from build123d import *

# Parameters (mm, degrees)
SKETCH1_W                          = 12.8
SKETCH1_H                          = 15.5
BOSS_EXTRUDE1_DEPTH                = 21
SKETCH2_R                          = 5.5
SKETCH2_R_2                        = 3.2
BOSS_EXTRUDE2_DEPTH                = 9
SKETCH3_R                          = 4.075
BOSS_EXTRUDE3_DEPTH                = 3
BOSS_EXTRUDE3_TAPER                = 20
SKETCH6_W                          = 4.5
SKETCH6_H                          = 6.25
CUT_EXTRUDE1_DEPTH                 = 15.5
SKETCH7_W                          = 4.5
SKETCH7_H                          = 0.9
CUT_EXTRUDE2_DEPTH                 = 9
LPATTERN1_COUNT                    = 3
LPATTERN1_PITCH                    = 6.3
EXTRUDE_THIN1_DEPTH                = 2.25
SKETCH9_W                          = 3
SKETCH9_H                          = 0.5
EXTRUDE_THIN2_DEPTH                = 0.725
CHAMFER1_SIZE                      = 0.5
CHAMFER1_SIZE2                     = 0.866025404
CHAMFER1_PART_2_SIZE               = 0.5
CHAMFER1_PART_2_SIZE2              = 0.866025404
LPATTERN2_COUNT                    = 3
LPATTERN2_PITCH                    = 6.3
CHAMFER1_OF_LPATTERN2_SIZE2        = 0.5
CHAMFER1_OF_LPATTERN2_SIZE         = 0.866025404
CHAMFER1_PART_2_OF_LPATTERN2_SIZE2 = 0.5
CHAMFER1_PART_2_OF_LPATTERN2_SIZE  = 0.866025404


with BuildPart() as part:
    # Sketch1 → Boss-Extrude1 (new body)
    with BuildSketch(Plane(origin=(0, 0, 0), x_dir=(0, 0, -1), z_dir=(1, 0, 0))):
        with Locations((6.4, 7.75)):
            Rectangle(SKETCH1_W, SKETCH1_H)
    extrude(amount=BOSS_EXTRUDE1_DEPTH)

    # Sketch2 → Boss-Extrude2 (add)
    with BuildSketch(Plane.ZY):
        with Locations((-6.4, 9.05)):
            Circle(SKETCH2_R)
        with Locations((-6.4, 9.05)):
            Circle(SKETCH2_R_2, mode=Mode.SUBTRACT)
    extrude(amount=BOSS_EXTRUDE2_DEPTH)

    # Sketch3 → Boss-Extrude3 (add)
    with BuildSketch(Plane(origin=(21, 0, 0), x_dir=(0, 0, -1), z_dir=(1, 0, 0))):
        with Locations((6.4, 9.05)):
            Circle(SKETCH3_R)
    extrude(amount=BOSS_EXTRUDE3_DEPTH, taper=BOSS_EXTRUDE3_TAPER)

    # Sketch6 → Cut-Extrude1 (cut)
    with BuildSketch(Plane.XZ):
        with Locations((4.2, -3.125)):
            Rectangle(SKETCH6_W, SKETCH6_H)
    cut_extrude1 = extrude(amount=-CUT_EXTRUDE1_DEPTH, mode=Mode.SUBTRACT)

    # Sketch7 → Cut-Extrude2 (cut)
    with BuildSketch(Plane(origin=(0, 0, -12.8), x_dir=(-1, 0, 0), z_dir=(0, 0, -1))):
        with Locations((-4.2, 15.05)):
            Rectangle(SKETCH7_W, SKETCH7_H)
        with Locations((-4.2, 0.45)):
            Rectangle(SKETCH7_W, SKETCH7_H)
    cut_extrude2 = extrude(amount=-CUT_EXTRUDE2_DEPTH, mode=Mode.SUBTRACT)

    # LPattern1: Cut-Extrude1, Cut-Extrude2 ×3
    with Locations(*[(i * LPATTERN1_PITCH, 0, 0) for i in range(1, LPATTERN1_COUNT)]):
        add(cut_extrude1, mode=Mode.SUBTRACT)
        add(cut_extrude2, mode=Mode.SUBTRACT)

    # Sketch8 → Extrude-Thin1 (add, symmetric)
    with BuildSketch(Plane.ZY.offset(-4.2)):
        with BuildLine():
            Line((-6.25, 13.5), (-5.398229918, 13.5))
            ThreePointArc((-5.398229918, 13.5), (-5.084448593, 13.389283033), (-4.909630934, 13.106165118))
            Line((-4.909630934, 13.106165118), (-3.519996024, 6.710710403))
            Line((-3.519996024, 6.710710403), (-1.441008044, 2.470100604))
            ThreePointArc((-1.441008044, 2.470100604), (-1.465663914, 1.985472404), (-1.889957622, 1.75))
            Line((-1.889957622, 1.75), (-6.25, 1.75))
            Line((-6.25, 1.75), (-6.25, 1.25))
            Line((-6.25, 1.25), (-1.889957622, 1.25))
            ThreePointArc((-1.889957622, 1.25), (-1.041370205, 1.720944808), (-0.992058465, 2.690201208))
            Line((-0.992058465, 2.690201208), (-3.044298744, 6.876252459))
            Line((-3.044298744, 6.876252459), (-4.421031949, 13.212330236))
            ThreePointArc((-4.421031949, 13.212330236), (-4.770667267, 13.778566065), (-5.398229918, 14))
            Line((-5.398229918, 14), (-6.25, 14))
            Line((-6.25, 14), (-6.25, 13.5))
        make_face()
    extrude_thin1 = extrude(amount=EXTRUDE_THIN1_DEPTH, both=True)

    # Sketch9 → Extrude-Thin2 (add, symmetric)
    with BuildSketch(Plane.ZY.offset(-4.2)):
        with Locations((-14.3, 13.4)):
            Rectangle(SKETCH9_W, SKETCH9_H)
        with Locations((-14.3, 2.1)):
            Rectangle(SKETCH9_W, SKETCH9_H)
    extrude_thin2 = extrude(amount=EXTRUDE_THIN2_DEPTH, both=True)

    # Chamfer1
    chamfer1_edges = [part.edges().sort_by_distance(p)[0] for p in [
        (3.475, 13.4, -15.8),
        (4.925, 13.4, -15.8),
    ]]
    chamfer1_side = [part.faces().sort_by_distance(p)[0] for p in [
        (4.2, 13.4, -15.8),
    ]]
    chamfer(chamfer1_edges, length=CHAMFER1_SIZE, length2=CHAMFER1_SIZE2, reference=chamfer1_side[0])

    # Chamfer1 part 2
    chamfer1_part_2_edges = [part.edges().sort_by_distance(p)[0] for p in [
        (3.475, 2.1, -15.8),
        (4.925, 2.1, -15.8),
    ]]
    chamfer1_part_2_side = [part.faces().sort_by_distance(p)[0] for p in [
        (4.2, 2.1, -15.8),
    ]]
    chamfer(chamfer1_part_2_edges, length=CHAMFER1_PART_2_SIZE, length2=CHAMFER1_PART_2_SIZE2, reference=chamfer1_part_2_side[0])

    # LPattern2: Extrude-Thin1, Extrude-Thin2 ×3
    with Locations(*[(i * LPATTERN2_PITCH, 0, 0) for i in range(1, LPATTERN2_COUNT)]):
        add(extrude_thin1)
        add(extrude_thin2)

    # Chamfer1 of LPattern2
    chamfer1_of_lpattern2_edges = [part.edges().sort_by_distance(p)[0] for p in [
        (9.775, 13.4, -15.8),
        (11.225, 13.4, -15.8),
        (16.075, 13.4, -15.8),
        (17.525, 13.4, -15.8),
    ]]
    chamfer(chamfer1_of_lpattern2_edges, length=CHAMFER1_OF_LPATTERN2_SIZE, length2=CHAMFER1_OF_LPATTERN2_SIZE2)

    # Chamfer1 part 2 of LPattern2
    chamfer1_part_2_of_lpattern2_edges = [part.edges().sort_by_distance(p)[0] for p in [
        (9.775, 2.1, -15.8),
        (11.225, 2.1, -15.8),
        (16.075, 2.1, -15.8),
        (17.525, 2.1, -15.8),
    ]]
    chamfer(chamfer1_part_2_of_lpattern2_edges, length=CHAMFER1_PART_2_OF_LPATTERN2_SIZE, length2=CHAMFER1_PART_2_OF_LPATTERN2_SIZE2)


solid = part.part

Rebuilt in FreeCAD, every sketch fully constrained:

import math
import FreeCAD as App
import Part
import Sketcher


def edges_at(feature, points):
    """Names of the edges that pass closest to the given points."""
    edges = feature.Shape.Edges
    near = lambda p: min(range(len(edges)), key=lambda i: edges[i].distToShape(Part.Vertex(*p))[0])
    return sorted({f"Edge{near(p) + 1}" for p in points})

doc = App.newDocument("Part")
body = doc.addObject("PartDesign::Body", "Body")

# Sketch on YZ plane
sketch1 = body.newObject("Sketcher::SketchObject", "Sketch")
sketch1.AttachmentSupport = (doc.getObject("YZ_Plane"), [""])
sketch1.MapMode = "FlatFace"
sketch1.addGeometry([
    Part.LineSegment(App.Vector(15.5, 0, 0), App.Vector(0, 0, 0)),
    Part.LineSegment(App.Vector(0, 0, 0), App.Vector(0, -12.8, 0)),
    Part.LineSegment(App.Vector(0, -12.8, 0), App.Vector(15.5, -12.8, 0)),
    Part.LineSegment(App.Vector(15.5, -12.8, 0), App.Vector(15.5, 0, 0)),
], False)
sketch1.addConstraint([
    Sketcher.Constraint("Coincident", 0, 2, 1, 1),
    Sketcher.Constraint("Coincident", 1, 2, 2, 1),
    Sketcher.Constraint("Coincident", 2, 2, 3, 1),
    Sketcher.Constraint("Coincident", 3, 2, 0, 1),
    Sketcher.Constraint("Horizontal", 0),
    Sketcher.Constraint("Vertical", 1),
    Sketcher.Constraint("Horizontal", 2),
    Sketcher.Constraint("Vertical", 3),
    Sketcher.Constraint("Coincident", 0, 2, -1, 1),
    Sketcher.Constraint("DistanceX", 0, 2, 0, 1, 15.5),
    Sketcher.Constraint("DistanceY", 1, 2, 1, 1, 12.8),
])
pad1 = body.newObject("PartDesign::Pad", "Pad")
pad1.Profile = sketch1
pad1.Length = 21

# Sketch on YZ plane
sketch2 = body.newObject("Sketcher::SketchObject", "Sketch001")
sketch2.AttachmentSupport = (doc.getObject("YZ_Plane"), [""])
sketch2.MapMode = "FlatFace"
sketch2.addGeometry([
    Part.Circle(App.Vector(9.05, -6.4, 0), App.Vector(0, 0, 1), 5.5),
    Part.Circle(App.Vector(9.05, -6.4, 0), App.Vector(0, 0, 1), 3.2),
], False)
sketch2.addConstraint([
    Sketcher.Constraint("Coincident", 1, 3, 0, 3),
    Sketcher.Constraint("Diameter", 0, 11.0),
    Sketcher.Constraint("Diameter", 1, 6.4),
    Sketcher.Constraint("DistanceY", 0, 3, -1, 1, 6.4),
    Sketcher.Constraint("DistanceX", -1, 1, 0, 3, 9.05),
])
pad2 = body.newObject("PartDesign::Pad", "Pad001")
pad2.Profile = sketch2
pad2.Length = 9
pad2.Reversed = True

# Sketch on YZ plane
sketch3 = body.newObject("Sketcher::SketchObject", "Sketch002")
sketch3.AttachmentSupport = (doc.getObject("YZ_Plane"), [""])
sketch3.MapMode = "FlatFace"
sketch3.AttachmentOffset = App.Placement(App.Vector(0, 0, 21), App.Rotation())
sketch3.addGeometry(Part.Circle(App.Vector(9.05, -6.4, 0), App.Vector(0, 0, 1), 4.075), False)
sketch3.addConstraint([
    Sketcher.Constraint("Diameter", 0, 8.15),
    Sketcher.Constraint("DistanceY", 0, 3, -1, 1, 6.4),
    Sketcher.Constraint("DistanceX", -1, 1, 0, 3, 9.05),
])
pad3 = body.newObject("PartDesign::Pad", "Pad002")
pad3.Profile = sketch3
pad3.Length = 3
pad3.TaperAngle = -20

# Sketch on XZ plane
sketch4 = body.newObject("Sketcher::SketchObject", "Sketch003")
sketch4.AttachmentSupport = (doc.getObject("XZ_Plane"), [""])
sketch4.MapMode = "FlatFace"
sketch4.addGeometry([
    Part.LineSegment(App.Vector(1.95, 0, 0), App.Vector(1.95, -6.25, 0)),
    Part.LineSegment(App.Vector(1.95, -6.25, 0), App.Vector(6.45, -6.25, 0)),
    Part.LineSegment(App.Vector(6.45, -6.25, 0), App.Vector(6.45, 0, 0)),
    Part.LineSegment(App.Vector(6.45, 0, 0), App.Vector(1.95, 0, 0)),
], False)
sketch4.addConstraint([
    Sketcher.Constraint("Coincident", 0, 2, 1, 1),
    Sketcher.Constraint("Coincident", 1, 2, 2, 1),
    Sketcher.Constraint("Coincident", 2, 2, 3, 1),
    Sketcher.Constraint("Coincident", 3, 2, 0, 1),
    Sketcher.Constraint("Vertical", 0),
    Sketcher.Constraint("Horizontal", 1),
    Sketcher.Constraint("Vertical", 2),
    Sketcher.Constraint("Horizontal", 3),
    Sketcher.Constraint("PointOnObject", 2, 2, -1),
    Sketcher.Constraint("DistanceX", 1, 1, 1, 2, 4.5),
    Sketcher.Constraint("DistanceY", 0, 2, 0, 1, 6.25),
    Sketcher.Constraint("DistanceX", -1, 1, 0, 2, 1.95),
])
pocket1 = body.newObject("PartDesign::Pocket", "Pocket")
pocket1.Profile = sketch4
pocket1.Length = 15.5

# Sketch on XY plane
sketch5 = body.newObject("Sketcher::SketchObject", "Sketch004")
sketch5.AttachmentSupport = (doc.getObject("XY_Plane"), [""])
sketch5.MapMode = "FlatFace"
sketch5.AttachmentOffset = App.Placement(App.Vector(0, 0, -12.8), App.Rotation())
sketch5.addGeometry([
    Part.LineSegment(App.Vector(6.45, 15.5, 0), App.Vector(6.45, 14.6, 0)),  # 0
    Part.LineSegment(App.Vector(6.45, 14.6, 0), App.Vector(1.95, 14.6, 0)),  # 1
    Part.LineSegment(App.Vector(1.95, 14.6, 0), App.Vector(1.95, 15.5, 0)),  # 2
    Part.LineSegment(App.Vector(1.95, 15.5, 0), App.Vector(6.45, 15.5, 0)),  # 3
    Part.LineSegment(App.Vector(6.45, 0.9, 0), App.Vector(6.45, 0, 0)),  # 4
    Part.LineSegment(App.Vector(6.45, 0, 0), App.Vector(1.95, 0, 0)),  # 5
    Part.LineSegment(App.Vector(1.95, 0, 0), App.Vector(1.95, 0.9, 0)),  # 6
    Part.LineSegment(App.Vector(1.95, 0.9, 0), App.Vector(6.45, 0.9, 0)),  # 7
], False)
sketch5.addConstraint([
    Sketcher.Constraint("Coincident", 0, 2, 1, 1),
    Sketcher.Constraint("Coincident", 1, 2, 2, 1),
    Sketcher.Constraint("Coincident", 2, 2, 3, 1),
    Sketcher.Constraint("Coincident", 3, 2, 0, 1),
    Sketcher.Constraint("Coincident", 4, 2, 5, 1),
    Sketcher.Constraint("Coincident", 5, 2, 6, 1),
    Sketcher.Constraint("Coincident", 6, 2, 7, 1),
    Sketcher.Constraint("Coincident", 7, 2, 4, 1),
    Sketcher.Constraint("Vertical", 0),
    Sketcher.Constraint("Horizontal", 1),
    Sketcher.Constraint("Vertical", 2),
    Sketcher.Constraint("Horizontal", 3),
    Sketcher.Constraint("Vertical", 4),
    Sketcher.Constraint("Horizontal", 5),
    Sketcher.Constraint("Vertical", 6),
    Sketcher.Constraint("Horizontal", 7),
    Sketcher.Constraint("PointOnObject", 4, 2, -1),
    Sketcher.Constraint("Vertical", 3, 2, 4, 2),
    Sketcher.Constraint("Vertical", 2, 2, 5, 2),
    Sketcher.Constraint("Equal", 2, 4),
    Sketcher.Constraint("DistanceX", 1, 2, 1, 1, 4.5),
    Sketcher.Constraint("DistanceY", 0, 2, 0, 1, 0.9),
    Sketcher.Constraint("DistanceY", -1, 1, 0, 2, 14.6),
    Sketcher.Constraint("DistanceX", -1, 1, 0, 2, 6.45),
])
pocket2 = body.newObject("PartDesign::Pocket", "Pocket001")
pocket2.Profile = sketch5
pocket2.Length = 9
pocket2.Reversed = True
doc.recompute()

linearpattern = body.newObject("PartDesign::LinearPattern", "LinearPattern")
linearpattern.Originals = [pocket1, pocket2]
linearpattern.Direction = (doc.getObject("X_Axis"), [""])
linearpattern.Mode = "offset"
linearpattern.Offset = 6.3
linearpattern.Occurrences = 3
body.Tip = linearpattern

# Sketch on YZ plane
sketch6 = body.newObject("Sketcher::SketchObject", "Sketch005")
sketch6.AttachmentSupport = (doc.getObject("YZ_Plane"), [""])
sketch6.MapMode = "FlatFace"
sketch6.AttachmentOffset = App.Placement(App.Vector(0, 0, 4.2), App.Rotation())
sketch6.addGeometry([
    Part.LineSegment(App.Vector(13.5, -6.25, 0), App.Vector(13.5, -5.39823, 0)),  # 0
    Part.ArcOfCircle(Part.Circle(App.Vector(13, -5.39823, 0), App.Vector(0, 0, 1), 0.5), math.radians(0), math.radians(77.741055)),  # 1
    Part.LineSegment(App.Vector(13.106165, -4.909631, 0), App.Vector(6.71071, -3.519996, 0)),  # 2
    Part.LineSegment(App.Vector(6.71071, -3.519996, 0), App.Vector(2.470101, -1.441008, 0)),  # 3
    Part.ArcOfCircle(Part.Circle(App.Vector(2.25, -1.889958, 0), App.Vector(0, 0, 1), 0.5), math.radians(63.88328), math.radians(180)),  # 4
    Part.LineSegment(App.Vector(1.75, -1.889958, 0), App.Vector(1.75, -6.25, 0)),  # 5
    Part.LineSegment(App.Vector(1.75, -6.25, 0), App.Vector(1.25, -6.25, 0)),  # 6
    Part.LineSegment(App.Vector(1.25, -6.25, 0), App.Vector(1.25, -1.889958, 0)),  # 7
    Part.ArcOfCircle(Part.Circle(App.Vector(2.25, -1.889958, 0), App.Vector(0, 0, 1), 1), math.radians(63.88328), math.radians(180)),  # 8
    Part.LineSegment(App.Vector(2.690201, -0.992058, 0), App.Vector(6.876252, -3.044299, 0)),  # 9
    Part.LineSegment(App.Vector(6.876252, -3.044299, 0), App.Vector(13.21233, -4.421032, 0)),  # 10
    Part.ArcOfCircle(Part.Circle(App.Vector(13, -5.39823, 0), App.Vector(0, 0, 1), 1), math.radians(0), math.radians(77.741055)),  # 11
    Part.LineSegment(App.Vector(14, -5.39823, 0), App.Vector(14, -6.25, 0)),  # 12
    Part.LineSegment(App.Vector(14, -6.25, 0), App.Vector(13.5, -6.25, 0)),  # 13
], False)
sketch6.addConstraint([
    Sketcher.Constraint("Tangent", 0, 2, 1, 1),
    Sketcher.Constraint("Tangent", 1, 2, 2, 1),
    Sketcher.Constraint("Coincident", 2, 2, 3, 1),
    Sketcher.Constraint("Tangent", 3, 2, 4, 1),
    Sketcher.Constraint("Tangent", 4, 2, 5, 1),
    Sketcher.Constraint("Coincident", 5, 2, 6, 1),
    Sketcher.Constraint("Coincident", 6, 2, 7, 1),
    Sketcher.Constraint("Tangent", 7, 2, 8, 2),
    Sketcher.Constraint("Tangent", 8, 1, 9, 1),
    Sketcher.Constraint("Coincident", 9, 2, 10, 1),
    Sketcher.Constraint("Tangent", 10, 2, 11, 2),
    Sketcher.Constraint("Tangent", 11, 1, 12, 1),
    Sketcher.Constraint("Coincident", 12, 2, 13, 1),
    Sketcher.Constraint("Coincident", 13, 2, 0, 1),
    Sketcher.Constraint("Vertical", 0),
    Sketcher.Constraint("Vertical", 5),
    Sketcher.Constraint("Horizontal", 6),
    Sketcher.Constraint("Vertical", 7),
    Sketcher.Constraint("Vertical", 12),
    Sketcher.Constraint("Horizontal", 13),
    Sketcher.Constraint("Coincident", 8, 3, 4, 3),
    Sketcher.Constraint("Coincident", 11, 3, 1, 3),
    Sketcher.Constraint("Equal", 1, 4),
    Sketcher.Constraint("Equal", 8, 11),
    Sketcher.Constraint("Parallel", 3, 9),
    Sketcher.Constraint("Parallel", 2, 10),
    Sketcher.Constraint("Horizontal", 6, 2, 12, 2),
    Sketcher.Constraint("Radius", 8, 1.0),
    Sketcher.Constraint("Radius", 1, 0.5),
    Sketcher.Constraint("DistanceX", -1, 1, 1, 3, 13.0),
    Sketcher.Constraint("DistanceX", -1, 1, 4, 3, 2.25),
    Sketcher.Constraint("DistanceY", 5, 2, -1, 1, 6.25),
    Sketcher.Constraint("DistanceY", 0, 1, 0, 2, 0.85177),
    Sketcher.Constraint("DistanceX", -1, 1, 3, 2, 2.470101),
    Sketcher.Constraint("DistanceY", 9, 2, -1, 1, 3.044299),
    Sketcher.Constraint("Distance", 9, 4.662051),
])
pad4 = body.newObject("PartDesign::Pad", "Pad003")
pad4.Profile = sketch6
pad4.Length = 4.5
pad4.Midplane = True

# Sketch on YZ plane
sketch7 = body.newObject("Sketcher::SketchObject", "Sketch006")
sketch7.AttachmentSupport = (doc.getObject("YZ_Plane"), [""])
sketch7.MapMode = "FlatFace"
sketch7.AttachmentOffset = App.Placement(App.Vector(0, 0, 4.2), App.Rotation())
sketch7.addGeometry([
    Part.LineSegment(App.Vector(13.65, -15.8, 0), App.Vector(13.15, -15.8, 0)),  # 0
    Part.LineSegment(App.Vector(13.15, -15.8, 0), App.Vector(13.15, -12.8, 0)),  # 1
    Part.LineSegment(App.Vector(13.15, -12.8, 0), App.Vector(13.65, -12.8, 0)),  # 2
    Part.LineSegment(App.Vector(13.65, -12.8, 0), App.Vector(13.65, -15.8, 0)),  # 3
    Part.LineSegment(App.Vector(2.35, -15.8, 0), App.Vector(1.85, -15.8, 0)),  # 4
    Part.LineSegment(App.Vector(1.85, -15.8, 0), App.Vector(1.85, -12.8, 0)),  # 5
    Part.LineSegment(App.Vector(1.85, -12.8, 0), App.Vector(2.35, -12.8, 0)),  # 6
    Part.LineSegment(App.Vector(2.35, -12.8, 0), App.Vector(2.35, -15.8, 0)),  # 7
], False)
sketch7.addConstraint([
    Sketcher.Constraint("Coincident", 0, 2, 1, 1),
    Sketcher.Constraint("Coincident", 1, 2, 2, 1),
    Sketcher.Constraint("Coincident", 2, 2, 3, 1),
    Sketcher.Constraint("Coincident", 3, 2, 0, 1),
    Sketcher.Constraint("Coincident", 4, 2, 5, 1),
    Sketcher.Constraint("Coincident", 5, 2, 6, 1),
    Sketcher.Constraint("Coincident", 6, 2, 7, 1),
    Sketcher.Constraint("Coincident", 7, 2, 4, 1),
    Sketcher.Constraint("Horizontal", 0),
    Sketcher.Constraint("Vertical", 1),
    Sketcher.Constraint("Horizontal", 2),
    Sketcher.Constraint("Vertical", 3),
    Sketcher.Constraint("Horizontal", 4),
    Sketcher.Constraint("Vertical", 5),
    Sketcher.Constraint("Horizontal", 6),
    Sketcher.Constraint("Vertical", 7),
    Sketcher.Constraint("Horizontal", 3, 2, 4, 2),
    Sketcher.Constraint("Horizontal", 2, 2, 5, 2),
    Sketcher.Constraint("Equal", 2, 4),
    Sketcher.Constraint("DistanceY", 1, 1, 1, 2, 3.0),
    Sketcher.Constraint("DistanceX", 0, 2, 0, 1, 0.5),
    Sketcher.Constraint("DistanceY", 0, 2, -1, 1, 15.8),
    Sketcher.Constraint("DistanceX", 4, 2, 0, 2, 11.3),
    Sketcher.Constraint("DistanceX", -1, 1, 0, 2, 13.15),
])
pad5 = body.newObject("PartDesign::Pad", "Pad004")
pad5.Profile = sketch7
pad5.Length = 1.45
pad5.Midplane = True
doc.recompute()

chamfer = body.newObject("PartDesign::Chamfer", "Chamfer")
chamfer.Base = (pad5, edges_at(pad5, [(3.475, 13.4, -15.8), (4.925, 13.4, -15.8)]))
chamfer.ChamferType = "Two distances"
chamfer.Size = 0.5
chamfer.Size2 = 0.866025
chamfer.FlipDirection = True
doc.recompute()

chamfer2 = body.newObject("PartDesign::Chamfer", "Chamfer001")
chamfer2.Base = (chamfer, edges_at(chamfer, [(3.475, 2.1, -15.8), (4.925, 2.1, -15.8)]))
chamfer2.ChamferType = "Two distances"
chamfer2.Size = 0.5
chamfer2.Size2 = 0.866025
chamfer2.FlipDirection = True
doc.recompute()

linearpattern2 = body.newObject("PartDesign::LinearPattern", "LinearPattern001")
linearpattern2.Originals = [pad4, pad5]
linearpattern2.Direction = (doc.getObject("X_Axis"), [""])
linearpattern2.Mode = "offset"
linearpattern2.Offset = 6.3
linearpattern2.Occurrences = 3
body.Tip = linearpattern2
doc.recompute()

chamfer3 = body.newObject("PartDesign::Chamfer", "Chamfer002")
chamfer3.Base = (linearpattern2, edges_at(linearpattern2, [
    (9.775, 13.4, -15.8),
    (11.225, 13.4, -15.8),
    (16.075, 13.4, -15.8),
    (17.525, 13.4, -15.8),
]))
chamfer3.ChamferType = "Two distances"
chamfer3.Size = 0.866025
chamfer3.Size2 = 0.5
doc.recompute()

chamfer4 = body.newObject("PartDesign::Chamfer", "Chamfer003")
chamfer4.Base = (chamfer3, edges_at(chamfer3, [
    (9.775, 2.1, -15.8),
    (11.225, 2.1, -15.8),
    (16.075, 2.1, -15.8),
    (17.525, 2.1, -15.8),
]))
chamfer4.ChamferType = "Two distances"
chamfer4.Size = 0.866025
chamfer4.Size2 = 0.5

doc.recompute()
